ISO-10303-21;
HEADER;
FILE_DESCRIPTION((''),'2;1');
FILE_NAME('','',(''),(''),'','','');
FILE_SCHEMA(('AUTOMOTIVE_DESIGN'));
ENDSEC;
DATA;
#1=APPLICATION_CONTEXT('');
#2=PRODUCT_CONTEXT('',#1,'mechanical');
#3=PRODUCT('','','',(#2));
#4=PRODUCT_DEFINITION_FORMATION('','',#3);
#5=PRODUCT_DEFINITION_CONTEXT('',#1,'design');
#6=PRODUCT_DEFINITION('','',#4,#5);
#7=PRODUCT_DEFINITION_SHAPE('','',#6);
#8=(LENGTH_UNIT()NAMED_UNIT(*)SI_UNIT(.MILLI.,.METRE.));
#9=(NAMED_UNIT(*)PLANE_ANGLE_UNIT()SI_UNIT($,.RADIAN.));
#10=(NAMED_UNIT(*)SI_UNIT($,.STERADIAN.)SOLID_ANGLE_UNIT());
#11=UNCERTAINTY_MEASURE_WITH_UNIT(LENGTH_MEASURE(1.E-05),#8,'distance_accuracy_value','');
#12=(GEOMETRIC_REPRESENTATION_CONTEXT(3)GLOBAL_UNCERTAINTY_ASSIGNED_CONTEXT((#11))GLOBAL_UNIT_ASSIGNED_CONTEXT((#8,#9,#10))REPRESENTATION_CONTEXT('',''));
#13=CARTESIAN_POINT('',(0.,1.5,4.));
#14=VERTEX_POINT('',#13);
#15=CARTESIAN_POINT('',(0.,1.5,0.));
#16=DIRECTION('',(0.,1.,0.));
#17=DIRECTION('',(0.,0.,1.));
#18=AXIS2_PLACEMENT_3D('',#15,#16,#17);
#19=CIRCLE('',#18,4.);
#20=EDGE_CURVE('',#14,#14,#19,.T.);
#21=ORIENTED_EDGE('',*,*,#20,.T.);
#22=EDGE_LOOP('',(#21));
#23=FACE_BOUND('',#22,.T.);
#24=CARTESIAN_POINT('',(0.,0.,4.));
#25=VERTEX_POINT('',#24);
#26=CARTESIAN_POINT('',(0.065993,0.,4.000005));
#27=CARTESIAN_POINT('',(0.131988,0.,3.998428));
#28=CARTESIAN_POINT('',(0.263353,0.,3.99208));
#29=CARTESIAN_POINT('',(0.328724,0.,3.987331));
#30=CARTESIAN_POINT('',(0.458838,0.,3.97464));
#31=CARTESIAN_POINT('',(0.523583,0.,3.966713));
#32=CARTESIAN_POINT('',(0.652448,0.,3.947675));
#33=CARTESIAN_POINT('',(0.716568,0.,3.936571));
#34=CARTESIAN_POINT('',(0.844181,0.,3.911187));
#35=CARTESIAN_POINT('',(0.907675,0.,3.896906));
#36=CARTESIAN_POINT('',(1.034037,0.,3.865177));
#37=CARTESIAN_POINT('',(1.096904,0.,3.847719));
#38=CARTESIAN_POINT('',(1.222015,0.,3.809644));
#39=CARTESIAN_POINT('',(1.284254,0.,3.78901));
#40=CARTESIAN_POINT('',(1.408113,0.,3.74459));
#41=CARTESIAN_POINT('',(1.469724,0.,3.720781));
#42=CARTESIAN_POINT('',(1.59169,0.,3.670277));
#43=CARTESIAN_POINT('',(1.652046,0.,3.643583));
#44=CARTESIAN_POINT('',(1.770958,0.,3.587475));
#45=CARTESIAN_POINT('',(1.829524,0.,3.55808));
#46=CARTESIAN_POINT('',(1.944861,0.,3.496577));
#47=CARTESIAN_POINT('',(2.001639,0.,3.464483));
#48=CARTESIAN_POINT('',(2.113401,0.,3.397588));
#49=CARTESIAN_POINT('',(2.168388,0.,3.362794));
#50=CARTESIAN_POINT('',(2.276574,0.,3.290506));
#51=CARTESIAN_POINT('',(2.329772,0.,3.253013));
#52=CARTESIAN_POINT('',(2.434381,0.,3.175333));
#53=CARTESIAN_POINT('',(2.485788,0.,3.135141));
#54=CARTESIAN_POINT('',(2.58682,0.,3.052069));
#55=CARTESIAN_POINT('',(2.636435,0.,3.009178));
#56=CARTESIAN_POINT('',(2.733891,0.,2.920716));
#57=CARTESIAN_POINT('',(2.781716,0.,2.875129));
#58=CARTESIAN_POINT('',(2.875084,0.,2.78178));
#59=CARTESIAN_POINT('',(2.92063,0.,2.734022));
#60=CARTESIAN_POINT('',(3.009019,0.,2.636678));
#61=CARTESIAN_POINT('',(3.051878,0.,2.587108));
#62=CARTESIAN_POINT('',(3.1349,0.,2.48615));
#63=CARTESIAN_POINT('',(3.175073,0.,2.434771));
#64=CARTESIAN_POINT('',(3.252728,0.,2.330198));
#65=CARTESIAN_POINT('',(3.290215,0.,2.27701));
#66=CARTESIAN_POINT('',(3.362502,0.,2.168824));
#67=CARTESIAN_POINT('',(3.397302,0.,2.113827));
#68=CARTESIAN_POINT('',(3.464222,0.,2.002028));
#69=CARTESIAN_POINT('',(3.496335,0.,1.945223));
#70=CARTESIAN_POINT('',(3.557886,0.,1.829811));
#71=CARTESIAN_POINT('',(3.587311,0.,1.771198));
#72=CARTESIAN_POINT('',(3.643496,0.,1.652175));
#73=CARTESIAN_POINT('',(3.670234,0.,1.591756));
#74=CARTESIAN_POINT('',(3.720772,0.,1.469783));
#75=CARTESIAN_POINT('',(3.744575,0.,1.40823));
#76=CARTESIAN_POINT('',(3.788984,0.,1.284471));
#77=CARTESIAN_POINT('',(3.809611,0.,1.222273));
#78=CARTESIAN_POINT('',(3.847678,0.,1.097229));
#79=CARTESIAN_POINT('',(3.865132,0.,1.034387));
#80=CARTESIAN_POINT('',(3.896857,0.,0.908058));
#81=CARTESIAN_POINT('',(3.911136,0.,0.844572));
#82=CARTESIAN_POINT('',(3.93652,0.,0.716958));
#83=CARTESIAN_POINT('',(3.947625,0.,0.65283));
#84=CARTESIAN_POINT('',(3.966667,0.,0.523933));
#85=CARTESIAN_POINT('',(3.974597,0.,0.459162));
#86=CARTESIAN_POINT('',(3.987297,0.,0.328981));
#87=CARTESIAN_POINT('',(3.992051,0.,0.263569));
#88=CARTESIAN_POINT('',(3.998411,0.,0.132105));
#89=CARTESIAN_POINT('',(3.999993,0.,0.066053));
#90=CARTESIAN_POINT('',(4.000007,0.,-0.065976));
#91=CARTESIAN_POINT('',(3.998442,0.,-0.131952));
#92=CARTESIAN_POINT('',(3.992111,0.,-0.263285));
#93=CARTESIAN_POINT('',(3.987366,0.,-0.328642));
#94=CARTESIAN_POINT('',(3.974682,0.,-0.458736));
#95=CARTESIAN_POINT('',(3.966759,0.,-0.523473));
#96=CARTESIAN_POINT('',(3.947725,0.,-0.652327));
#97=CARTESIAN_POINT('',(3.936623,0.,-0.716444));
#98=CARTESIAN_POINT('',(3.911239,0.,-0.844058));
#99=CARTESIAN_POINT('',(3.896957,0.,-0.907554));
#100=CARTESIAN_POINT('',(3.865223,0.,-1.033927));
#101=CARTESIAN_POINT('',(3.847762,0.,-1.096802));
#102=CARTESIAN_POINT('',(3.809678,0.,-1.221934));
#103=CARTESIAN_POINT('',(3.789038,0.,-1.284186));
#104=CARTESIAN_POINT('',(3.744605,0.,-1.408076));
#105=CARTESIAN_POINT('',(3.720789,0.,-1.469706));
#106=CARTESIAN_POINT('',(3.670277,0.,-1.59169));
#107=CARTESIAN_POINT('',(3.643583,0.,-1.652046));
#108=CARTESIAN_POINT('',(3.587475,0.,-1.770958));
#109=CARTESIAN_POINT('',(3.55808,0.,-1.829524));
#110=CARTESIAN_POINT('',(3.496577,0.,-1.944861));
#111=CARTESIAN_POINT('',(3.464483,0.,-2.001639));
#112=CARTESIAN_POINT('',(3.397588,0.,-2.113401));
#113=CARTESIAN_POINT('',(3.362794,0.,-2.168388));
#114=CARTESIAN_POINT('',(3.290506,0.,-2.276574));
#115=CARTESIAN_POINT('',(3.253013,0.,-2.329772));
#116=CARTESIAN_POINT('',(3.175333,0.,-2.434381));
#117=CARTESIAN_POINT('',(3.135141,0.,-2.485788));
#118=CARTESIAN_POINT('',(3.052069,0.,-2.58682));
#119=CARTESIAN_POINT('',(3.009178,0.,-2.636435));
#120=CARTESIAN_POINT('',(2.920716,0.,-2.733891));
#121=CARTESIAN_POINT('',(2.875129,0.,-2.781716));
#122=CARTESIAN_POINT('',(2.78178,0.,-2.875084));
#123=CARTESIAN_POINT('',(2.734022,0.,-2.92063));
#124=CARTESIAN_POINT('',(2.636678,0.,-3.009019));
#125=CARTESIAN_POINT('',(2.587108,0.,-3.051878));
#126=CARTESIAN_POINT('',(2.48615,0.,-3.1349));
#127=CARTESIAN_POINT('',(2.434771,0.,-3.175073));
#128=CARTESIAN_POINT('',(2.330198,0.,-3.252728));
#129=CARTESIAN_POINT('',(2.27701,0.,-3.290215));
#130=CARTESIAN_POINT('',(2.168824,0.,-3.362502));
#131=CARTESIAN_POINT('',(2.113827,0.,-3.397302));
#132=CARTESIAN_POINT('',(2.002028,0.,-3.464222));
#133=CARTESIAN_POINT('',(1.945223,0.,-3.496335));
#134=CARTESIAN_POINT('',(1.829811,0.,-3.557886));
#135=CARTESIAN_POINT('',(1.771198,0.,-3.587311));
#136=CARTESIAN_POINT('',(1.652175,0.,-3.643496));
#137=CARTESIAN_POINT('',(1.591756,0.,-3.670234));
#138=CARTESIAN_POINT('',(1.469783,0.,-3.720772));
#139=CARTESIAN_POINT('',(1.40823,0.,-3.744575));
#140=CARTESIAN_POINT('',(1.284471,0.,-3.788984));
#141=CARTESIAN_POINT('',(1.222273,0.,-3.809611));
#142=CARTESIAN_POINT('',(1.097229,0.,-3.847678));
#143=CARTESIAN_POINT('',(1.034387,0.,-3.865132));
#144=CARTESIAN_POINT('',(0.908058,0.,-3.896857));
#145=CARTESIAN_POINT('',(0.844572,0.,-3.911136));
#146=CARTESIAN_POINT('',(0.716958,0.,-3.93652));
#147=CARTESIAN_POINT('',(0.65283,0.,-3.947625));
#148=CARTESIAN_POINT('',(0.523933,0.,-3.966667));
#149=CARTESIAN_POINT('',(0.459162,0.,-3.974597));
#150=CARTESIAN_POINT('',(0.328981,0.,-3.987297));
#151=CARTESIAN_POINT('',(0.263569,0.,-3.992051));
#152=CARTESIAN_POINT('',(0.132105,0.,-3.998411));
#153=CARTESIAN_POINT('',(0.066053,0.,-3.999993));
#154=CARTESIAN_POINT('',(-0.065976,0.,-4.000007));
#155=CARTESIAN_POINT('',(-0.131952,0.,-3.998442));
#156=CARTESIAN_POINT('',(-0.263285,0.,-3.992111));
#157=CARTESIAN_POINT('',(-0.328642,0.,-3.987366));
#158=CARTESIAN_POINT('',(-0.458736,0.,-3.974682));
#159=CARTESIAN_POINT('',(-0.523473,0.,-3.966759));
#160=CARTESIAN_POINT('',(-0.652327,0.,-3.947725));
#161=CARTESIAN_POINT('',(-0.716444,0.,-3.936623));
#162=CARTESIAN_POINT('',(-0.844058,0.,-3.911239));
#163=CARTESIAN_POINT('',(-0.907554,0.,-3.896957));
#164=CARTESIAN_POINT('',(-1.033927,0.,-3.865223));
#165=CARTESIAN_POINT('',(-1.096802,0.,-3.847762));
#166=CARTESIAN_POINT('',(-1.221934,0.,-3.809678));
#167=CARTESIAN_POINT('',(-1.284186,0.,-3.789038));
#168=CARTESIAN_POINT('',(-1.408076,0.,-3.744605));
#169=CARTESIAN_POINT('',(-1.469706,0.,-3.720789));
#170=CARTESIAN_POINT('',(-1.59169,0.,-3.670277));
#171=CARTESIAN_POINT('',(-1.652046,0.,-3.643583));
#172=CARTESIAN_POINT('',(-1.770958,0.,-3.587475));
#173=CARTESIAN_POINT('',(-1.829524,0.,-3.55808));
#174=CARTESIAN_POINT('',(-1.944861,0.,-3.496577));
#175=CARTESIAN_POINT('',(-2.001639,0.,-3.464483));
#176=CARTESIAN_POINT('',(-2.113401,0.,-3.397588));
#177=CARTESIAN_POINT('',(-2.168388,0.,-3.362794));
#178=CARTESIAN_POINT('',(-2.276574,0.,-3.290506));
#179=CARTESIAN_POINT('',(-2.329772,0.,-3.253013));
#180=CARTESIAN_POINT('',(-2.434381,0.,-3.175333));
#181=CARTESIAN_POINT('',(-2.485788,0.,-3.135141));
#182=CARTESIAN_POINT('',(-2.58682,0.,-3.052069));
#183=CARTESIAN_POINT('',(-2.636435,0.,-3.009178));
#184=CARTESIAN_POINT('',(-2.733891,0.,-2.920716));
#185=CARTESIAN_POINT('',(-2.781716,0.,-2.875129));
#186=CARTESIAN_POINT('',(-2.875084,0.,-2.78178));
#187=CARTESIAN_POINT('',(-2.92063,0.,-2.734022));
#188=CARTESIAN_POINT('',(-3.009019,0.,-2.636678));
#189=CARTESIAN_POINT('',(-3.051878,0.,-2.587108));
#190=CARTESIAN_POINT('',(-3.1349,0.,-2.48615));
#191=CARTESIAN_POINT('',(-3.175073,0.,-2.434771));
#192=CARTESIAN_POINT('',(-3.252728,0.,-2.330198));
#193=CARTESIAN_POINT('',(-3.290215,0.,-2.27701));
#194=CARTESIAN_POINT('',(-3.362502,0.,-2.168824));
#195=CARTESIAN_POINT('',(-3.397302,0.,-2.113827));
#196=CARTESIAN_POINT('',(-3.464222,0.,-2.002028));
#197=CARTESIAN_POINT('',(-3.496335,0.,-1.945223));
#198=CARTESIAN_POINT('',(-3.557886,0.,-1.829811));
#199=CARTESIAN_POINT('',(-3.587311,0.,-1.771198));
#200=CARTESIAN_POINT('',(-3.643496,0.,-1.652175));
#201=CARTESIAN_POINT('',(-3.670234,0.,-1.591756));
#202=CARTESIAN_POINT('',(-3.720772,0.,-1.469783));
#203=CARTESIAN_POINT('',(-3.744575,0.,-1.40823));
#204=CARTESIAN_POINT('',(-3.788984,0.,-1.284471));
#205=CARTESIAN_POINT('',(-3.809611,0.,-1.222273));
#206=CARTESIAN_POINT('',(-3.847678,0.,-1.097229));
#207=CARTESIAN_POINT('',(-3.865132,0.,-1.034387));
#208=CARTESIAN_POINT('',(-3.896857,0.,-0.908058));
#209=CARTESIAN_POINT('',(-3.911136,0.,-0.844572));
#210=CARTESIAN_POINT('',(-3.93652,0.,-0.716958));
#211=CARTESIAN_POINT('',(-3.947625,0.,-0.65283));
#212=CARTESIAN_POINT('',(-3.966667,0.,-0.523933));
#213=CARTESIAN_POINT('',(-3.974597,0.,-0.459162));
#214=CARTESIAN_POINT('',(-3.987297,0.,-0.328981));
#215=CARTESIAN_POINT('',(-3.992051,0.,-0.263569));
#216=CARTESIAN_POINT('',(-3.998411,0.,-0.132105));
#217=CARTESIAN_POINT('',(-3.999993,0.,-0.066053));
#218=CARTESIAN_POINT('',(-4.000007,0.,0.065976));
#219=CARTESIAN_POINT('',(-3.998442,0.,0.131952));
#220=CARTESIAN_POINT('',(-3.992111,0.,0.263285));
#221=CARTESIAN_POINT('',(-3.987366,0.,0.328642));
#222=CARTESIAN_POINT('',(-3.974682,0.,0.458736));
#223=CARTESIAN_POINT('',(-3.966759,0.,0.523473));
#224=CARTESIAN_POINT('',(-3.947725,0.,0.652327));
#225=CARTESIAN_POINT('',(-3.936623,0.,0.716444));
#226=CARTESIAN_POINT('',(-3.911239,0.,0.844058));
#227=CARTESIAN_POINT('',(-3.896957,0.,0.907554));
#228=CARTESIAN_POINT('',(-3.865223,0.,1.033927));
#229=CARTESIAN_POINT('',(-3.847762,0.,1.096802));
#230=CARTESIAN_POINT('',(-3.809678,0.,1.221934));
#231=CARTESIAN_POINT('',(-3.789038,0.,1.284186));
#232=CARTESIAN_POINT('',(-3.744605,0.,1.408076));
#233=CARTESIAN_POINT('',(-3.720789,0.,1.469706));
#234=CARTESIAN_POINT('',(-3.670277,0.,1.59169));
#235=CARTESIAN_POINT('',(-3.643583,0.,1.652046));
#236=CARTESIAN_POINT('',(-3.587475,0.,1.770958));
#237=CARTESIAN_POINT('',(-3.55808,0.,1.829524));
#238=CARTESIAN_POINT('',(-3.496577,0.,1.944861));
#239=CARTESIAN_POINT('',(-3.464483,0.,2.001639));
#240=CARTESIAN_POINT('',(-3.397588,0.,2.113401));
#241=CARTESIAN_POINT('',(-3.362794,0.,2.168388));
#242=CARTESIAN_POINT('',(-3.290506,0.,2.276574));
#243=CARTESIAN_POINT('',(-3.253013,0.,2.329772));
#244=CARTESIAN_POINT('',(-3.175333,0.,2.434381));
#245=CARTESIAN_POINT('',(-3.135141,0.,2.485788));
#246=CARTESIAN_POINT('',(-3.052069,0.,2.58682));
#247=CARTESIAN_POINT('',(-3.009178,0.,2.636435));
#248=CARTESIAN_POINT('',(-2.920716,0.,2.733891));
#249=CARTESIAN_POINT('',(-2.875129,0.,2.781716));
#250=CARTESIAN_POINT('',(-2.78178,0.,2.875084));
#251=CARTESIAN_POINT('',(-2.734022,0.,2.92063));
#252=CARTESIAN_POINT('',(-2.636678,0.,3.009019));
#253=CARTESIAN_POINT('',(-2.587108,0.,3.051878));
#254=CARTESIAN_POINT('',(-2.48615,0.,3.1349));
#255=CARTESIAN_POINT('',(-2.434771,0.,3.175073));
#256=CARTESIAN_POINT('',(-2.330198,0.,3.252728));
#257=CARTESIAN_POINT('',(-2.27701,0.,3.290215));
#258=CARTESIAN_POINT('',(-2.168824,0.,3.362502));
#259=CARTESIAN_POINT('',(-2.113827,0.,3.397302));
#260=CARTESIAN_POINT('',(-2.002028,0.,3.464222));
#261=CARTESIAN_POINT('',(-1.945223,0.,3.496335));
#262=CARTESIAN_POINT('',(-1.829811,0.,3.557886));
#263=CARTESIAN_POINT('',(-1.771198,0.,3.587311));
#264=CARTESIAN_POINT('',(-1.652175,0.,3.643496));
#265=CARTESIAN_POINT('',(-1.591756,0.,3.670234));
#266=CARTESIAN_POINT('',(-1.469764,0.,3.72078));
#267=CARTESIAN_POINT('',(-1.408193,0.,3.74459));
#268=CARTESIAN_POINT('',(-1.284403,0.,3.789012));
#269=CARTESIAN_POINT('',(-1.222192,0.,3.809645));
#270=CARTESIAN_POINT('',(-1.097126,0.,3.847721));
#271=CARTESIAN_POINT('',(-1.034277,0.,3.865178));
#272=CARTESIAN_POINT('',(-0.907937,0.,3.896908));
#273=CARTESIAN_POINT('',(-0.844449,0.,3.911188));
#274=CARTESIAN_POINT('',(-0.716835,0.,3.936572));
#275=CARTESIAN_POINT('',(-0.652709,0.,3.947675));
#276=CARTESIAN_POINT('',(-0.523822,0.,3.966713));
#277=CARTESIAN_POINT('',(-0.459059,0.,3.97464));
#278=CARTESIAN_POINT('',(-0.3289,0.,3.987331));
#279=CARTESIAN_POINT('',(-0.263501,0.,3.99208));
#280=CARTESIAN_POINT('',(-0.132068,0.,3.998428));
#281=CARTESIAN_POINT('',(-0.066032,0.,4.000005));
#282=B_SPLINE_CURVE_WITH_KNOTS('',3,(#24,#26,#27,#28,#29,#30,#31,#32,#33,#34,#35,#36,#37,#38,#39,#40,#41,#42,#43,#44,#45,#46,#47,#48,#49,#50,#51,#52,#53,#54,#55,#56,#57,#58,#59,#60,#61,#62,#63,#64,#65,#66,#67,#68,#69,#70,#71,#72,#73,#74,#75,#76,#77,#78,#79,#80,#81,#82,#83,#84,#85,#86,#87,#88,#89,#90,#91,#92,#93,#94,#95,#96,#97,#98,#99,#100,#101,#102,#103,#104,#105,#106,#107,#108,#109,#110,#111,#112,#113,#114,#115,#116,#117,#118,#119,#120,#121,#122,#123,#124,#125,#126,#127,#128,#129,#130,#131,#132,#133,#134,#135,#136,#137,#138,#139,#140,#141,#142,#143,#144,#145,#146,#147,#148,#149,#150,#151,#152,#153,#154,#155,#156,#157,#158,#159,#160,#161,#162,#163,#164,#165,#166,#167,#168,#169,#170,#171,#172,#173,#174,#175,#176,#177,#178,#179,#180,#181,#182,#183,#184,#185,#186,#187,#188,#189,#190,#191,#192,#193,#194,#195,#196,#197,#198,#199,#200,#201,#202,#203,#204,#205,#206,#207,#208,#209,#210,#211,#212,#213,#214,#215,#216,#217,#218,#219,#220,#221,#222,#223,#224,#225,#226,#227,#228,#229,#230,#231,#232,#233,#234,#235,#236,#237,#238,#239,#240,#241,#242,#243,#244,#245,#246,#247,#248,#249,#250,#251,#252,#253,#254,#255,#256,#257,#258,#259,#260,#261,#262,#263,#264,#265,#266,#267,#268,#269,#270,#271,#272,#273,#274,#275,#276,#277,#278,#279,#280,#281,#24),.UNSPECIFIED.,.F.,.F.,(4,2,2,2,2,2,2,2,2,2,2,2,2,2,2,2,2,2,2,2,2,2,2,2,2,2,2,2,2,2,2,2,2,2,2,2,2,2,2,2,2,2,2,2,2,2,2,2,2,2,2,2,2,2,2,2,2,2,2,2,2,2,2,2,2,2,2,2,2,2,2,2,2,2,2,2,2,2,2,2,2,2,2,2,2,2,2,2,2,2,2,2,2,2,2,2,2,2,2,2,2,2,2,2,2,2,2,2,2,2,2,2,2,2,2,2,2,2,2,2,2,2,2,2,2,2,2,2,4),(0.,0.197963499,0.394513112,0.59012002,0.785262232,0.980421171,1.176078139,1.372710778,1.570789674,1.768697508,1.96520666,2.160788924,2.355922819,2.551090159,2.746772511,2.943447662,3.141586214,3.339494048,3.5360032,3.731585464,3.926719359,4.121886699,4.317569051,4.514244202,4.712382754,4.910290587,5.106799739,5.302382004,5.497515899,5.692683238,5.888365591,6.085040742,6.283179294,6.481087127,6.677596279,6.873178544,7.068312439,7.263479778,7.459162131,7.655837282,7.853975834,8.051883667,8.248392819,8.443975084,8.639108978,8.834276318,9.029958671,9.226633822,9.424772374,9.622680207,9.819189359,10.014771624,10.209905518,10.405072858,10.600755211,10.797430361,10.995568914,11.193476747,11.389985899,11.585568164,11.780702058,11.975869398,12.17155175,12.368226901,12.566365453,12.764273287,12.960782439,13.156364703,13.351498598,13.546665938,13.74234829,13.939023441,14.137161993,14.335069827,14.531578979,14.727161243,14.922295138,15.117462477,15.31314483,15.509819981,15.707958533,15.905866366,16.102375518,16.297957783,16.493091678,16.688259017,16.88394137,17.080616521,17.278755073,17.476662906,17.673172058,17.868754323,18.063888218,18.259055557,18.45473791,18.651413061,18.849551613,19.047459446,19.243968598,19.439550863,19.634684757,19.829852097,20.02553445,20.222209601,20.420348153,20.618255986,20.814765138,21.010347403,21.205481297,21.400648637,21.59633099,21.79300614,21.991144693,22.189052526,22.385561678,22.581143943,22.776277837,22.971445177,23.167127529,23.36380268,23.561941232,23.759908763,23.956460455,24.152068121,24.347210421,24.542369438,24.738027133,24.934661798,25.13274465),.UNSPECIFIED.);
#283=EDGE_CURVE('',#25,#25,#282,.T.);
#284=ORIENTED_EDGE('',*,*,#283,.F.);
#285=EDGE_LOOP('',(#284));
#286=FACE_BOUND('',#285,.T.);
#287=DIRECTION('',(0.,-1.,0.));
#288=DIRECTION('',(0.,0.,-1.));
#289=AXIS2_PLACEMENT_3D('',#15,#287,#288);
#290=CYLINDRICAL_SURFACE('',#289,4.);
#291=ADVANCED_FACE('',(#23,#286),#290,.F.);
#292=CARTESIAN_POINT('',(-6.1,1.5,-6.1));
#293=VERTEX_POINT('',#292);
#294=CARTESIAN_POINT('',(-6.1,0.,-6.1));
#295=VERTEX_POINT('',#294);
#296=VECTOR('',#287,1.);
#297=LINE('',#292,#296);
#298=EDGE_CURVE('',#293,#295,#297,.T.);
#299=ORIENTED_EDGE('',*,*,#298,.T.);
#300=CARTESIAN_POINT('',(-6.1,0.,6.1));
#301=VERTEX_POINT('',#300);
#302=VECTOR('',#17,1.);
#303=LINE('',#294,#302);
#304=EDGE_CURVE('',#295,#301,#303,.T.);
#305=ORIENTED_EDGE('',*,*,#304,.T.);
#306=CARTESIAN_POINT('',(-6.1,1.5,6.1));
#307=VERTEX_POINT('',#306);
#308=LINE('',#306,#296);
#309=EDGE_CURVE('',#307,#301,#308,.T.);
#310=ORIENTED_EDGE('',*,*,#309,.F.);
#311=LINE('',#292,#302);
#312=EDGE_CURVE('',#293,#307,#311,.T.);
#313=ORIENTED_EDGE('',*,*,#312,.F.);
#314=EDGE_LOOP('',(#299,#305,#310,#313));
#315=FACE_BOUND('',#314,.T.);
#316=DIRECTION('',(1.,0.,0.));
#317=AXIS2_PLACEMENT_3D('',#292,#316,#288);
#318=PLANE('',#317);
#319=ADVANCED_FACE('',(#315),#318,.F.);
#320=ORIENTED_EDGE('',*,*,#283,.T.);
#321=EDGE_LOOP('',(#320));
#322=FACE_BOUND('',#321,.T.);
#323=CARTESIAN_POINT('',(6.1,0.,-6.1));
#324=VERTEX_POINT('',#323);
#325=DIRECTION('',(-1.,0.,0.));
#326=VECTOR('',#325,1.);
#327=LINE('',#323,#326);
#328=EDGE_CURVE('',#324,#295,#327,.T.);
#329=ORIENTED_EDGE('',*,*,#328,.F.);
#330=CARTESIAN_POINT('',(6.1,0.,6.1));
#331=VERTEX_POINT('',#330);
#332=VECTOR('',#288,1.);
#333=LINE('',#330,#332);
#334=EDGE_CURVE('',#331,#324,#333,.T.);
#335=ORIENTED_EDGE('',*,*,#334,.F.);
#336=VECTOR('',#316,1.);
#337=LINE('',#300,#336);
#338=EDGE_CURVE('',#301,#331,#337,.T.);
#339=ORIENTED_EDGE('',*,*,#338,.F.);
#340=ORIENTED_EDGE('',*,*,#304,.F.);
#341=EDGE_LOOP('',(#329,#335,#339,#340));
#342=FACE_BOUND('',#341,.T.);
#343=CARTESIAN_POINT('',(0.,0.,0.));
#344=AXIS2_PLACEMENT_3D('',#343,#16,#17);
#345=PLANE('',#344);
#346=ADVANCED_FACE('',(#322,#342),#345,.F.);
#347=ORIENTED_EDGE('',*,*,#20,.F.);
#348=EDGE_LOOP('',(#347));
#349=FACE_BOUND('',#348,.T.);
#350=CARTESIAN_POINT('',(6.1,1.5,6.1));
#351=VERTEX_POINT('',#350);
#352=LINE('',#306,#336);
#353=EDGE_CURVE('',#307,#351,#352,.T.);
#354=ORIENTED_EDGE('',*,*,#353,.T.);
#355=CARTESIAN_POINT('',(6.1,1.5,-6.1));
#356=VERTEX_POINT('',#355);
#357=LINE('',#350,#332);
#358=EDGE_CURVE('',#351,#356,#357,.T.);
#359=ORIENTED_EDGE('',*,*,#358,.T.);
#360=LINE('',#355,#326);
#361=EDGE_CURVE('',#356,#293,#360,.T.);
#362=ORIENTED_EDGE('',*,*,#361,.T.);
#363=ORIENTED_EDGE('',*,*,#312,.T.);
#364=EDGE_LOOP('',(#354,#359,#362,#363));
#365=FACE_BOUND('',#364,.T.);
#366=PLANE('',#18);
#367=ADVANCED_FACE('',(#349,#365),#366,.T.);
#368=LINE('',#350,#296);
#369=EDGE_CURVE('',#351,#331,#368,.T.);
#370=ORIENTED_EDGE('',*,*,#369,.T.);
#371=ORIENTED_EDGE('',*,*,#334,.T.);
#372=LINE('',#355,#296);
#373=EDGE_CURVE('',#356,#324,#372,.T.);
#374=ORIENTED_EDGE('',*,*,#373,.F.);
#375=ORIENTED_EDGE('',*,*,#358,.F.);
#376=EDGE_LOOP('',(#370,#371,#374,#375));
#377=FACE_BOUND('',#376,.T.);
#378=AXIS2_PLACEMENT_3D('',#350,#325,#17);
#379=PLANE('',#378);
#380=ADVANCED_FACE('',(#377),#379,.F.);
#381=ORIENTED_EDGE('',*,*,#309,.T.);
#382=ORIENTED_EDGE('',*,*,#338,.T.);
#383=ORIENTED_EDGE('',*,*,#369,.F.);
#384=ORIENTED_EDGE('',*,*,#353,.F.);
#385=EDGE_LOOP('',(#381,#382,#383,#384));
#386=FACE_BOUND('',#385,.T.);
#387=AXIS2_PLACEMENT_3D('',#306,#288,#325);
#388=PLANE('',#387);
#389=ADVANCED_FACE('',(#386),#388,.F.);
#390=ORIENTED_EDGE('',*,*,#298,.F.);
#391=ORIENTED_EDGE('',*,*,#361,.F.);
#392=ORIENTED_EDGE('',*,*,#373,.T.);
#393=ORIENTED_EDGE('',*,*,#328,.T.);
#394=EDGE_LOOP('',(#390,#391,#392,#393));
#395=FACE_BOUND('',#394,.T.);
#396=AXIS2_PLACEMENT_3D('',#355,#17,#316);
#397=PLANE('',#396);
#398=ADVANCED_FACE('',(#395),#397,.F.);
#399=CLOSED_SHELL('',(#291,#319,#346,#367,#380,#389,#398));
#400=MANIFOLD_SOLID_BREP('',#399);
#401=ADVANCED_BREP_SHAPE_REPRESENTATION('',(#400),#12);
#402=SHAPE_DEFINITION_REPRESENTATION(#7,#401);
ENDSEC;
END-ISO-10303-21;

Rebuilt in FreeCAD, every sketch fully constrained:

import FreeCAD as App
import Part
import Sketcher

doc = App.newDocument("Part")
body = doc.addObject("PartDesign::Body", "Body")

# Sketch on XZ plane
sketch1 = doc.addObject("Sketcher::SketchObject", "Sketch")
body.addObject(sketch1)
sketch1.AttachmentSupport = (doc.XZ_Plane, [""])
sketch1.MapMode = "FlatFace"
sketch1.addGeometry([
    Part.LineSegment(App.Vector(-6, -6, 0), App.Vector(-6, 6, 0)),
    Part.LineSegment(App.Vector(-6, 6, 0), App.Vector(6, 6, 0)),
    Part.LineSegment(App.Vector(6, 6, 0), App.Vector(6, -6, 0)),
    Part.LineSegment(App.Vector(6, -6, 0), App.Vector(-6, -6, 0)),
], False)
sketch1.addConstraint([
    Sketcher.Constraint("Coincident", 0, 2, 1, 1),
    Sketcher.Constraint("Coincident", 1, 2, 2, 1),
    Sketcher.Constraint("Coincident", 2, 2, 3, 1),
    Sketcher.Constraint("Coincident", 3, 2, 0, 1),
    Sketcher.Constraint("Vertical", 0),
    Sketcher.Constraint("Horizontal", 1),
    Sketcher.Constraint("Vertical", 2),
    Sketcher.Constraint("Horizontal", 3),
    Sketcher.Constraint("Symmetric", 0, 2, 2, 2, -1, 1),
    Sketcher.Constraint("Equal", 3, 0),
    Sketcher.Constraint("DistanceX", 1, 1, 1, 2, 12.2),
])
pad1 = doc.addObject("PartDesign::Pad", "Pad")
body.addObject(pad1)
pad1.Profile = sketch1
pad1.Length = 1.5
pad1.Reversed = True

# Sketch on XZ plane
sketch2 = doc.addObject("Sketcher::SketchObject", "Sketch001")
body.addObject(sketch2)
sketch2.AttachmentSupport = (doc.XZ_Plane, [""])
sketch2.MapMode = "FlatFace"
sketch2.addGeometry(Part.Circle(App.Vector(0, 0, 0), App.Vector(0, 0, 1), 4), False)
sketch2.addConstraint([
    Sketcher.Constraint("Coincident", 0, 3, -1, 1),
    Sketcher.Constraint("Diameter", 0, 8.0),
])
pocket1 = doc.addObject("PartDesign::Pocket", "Pocket")
body.addObject(pocket1)
pocket1.Profile = sketch2
pocket1.Type = "ThroughAll"
pocket1.Midplane = True

doc.recompute()
